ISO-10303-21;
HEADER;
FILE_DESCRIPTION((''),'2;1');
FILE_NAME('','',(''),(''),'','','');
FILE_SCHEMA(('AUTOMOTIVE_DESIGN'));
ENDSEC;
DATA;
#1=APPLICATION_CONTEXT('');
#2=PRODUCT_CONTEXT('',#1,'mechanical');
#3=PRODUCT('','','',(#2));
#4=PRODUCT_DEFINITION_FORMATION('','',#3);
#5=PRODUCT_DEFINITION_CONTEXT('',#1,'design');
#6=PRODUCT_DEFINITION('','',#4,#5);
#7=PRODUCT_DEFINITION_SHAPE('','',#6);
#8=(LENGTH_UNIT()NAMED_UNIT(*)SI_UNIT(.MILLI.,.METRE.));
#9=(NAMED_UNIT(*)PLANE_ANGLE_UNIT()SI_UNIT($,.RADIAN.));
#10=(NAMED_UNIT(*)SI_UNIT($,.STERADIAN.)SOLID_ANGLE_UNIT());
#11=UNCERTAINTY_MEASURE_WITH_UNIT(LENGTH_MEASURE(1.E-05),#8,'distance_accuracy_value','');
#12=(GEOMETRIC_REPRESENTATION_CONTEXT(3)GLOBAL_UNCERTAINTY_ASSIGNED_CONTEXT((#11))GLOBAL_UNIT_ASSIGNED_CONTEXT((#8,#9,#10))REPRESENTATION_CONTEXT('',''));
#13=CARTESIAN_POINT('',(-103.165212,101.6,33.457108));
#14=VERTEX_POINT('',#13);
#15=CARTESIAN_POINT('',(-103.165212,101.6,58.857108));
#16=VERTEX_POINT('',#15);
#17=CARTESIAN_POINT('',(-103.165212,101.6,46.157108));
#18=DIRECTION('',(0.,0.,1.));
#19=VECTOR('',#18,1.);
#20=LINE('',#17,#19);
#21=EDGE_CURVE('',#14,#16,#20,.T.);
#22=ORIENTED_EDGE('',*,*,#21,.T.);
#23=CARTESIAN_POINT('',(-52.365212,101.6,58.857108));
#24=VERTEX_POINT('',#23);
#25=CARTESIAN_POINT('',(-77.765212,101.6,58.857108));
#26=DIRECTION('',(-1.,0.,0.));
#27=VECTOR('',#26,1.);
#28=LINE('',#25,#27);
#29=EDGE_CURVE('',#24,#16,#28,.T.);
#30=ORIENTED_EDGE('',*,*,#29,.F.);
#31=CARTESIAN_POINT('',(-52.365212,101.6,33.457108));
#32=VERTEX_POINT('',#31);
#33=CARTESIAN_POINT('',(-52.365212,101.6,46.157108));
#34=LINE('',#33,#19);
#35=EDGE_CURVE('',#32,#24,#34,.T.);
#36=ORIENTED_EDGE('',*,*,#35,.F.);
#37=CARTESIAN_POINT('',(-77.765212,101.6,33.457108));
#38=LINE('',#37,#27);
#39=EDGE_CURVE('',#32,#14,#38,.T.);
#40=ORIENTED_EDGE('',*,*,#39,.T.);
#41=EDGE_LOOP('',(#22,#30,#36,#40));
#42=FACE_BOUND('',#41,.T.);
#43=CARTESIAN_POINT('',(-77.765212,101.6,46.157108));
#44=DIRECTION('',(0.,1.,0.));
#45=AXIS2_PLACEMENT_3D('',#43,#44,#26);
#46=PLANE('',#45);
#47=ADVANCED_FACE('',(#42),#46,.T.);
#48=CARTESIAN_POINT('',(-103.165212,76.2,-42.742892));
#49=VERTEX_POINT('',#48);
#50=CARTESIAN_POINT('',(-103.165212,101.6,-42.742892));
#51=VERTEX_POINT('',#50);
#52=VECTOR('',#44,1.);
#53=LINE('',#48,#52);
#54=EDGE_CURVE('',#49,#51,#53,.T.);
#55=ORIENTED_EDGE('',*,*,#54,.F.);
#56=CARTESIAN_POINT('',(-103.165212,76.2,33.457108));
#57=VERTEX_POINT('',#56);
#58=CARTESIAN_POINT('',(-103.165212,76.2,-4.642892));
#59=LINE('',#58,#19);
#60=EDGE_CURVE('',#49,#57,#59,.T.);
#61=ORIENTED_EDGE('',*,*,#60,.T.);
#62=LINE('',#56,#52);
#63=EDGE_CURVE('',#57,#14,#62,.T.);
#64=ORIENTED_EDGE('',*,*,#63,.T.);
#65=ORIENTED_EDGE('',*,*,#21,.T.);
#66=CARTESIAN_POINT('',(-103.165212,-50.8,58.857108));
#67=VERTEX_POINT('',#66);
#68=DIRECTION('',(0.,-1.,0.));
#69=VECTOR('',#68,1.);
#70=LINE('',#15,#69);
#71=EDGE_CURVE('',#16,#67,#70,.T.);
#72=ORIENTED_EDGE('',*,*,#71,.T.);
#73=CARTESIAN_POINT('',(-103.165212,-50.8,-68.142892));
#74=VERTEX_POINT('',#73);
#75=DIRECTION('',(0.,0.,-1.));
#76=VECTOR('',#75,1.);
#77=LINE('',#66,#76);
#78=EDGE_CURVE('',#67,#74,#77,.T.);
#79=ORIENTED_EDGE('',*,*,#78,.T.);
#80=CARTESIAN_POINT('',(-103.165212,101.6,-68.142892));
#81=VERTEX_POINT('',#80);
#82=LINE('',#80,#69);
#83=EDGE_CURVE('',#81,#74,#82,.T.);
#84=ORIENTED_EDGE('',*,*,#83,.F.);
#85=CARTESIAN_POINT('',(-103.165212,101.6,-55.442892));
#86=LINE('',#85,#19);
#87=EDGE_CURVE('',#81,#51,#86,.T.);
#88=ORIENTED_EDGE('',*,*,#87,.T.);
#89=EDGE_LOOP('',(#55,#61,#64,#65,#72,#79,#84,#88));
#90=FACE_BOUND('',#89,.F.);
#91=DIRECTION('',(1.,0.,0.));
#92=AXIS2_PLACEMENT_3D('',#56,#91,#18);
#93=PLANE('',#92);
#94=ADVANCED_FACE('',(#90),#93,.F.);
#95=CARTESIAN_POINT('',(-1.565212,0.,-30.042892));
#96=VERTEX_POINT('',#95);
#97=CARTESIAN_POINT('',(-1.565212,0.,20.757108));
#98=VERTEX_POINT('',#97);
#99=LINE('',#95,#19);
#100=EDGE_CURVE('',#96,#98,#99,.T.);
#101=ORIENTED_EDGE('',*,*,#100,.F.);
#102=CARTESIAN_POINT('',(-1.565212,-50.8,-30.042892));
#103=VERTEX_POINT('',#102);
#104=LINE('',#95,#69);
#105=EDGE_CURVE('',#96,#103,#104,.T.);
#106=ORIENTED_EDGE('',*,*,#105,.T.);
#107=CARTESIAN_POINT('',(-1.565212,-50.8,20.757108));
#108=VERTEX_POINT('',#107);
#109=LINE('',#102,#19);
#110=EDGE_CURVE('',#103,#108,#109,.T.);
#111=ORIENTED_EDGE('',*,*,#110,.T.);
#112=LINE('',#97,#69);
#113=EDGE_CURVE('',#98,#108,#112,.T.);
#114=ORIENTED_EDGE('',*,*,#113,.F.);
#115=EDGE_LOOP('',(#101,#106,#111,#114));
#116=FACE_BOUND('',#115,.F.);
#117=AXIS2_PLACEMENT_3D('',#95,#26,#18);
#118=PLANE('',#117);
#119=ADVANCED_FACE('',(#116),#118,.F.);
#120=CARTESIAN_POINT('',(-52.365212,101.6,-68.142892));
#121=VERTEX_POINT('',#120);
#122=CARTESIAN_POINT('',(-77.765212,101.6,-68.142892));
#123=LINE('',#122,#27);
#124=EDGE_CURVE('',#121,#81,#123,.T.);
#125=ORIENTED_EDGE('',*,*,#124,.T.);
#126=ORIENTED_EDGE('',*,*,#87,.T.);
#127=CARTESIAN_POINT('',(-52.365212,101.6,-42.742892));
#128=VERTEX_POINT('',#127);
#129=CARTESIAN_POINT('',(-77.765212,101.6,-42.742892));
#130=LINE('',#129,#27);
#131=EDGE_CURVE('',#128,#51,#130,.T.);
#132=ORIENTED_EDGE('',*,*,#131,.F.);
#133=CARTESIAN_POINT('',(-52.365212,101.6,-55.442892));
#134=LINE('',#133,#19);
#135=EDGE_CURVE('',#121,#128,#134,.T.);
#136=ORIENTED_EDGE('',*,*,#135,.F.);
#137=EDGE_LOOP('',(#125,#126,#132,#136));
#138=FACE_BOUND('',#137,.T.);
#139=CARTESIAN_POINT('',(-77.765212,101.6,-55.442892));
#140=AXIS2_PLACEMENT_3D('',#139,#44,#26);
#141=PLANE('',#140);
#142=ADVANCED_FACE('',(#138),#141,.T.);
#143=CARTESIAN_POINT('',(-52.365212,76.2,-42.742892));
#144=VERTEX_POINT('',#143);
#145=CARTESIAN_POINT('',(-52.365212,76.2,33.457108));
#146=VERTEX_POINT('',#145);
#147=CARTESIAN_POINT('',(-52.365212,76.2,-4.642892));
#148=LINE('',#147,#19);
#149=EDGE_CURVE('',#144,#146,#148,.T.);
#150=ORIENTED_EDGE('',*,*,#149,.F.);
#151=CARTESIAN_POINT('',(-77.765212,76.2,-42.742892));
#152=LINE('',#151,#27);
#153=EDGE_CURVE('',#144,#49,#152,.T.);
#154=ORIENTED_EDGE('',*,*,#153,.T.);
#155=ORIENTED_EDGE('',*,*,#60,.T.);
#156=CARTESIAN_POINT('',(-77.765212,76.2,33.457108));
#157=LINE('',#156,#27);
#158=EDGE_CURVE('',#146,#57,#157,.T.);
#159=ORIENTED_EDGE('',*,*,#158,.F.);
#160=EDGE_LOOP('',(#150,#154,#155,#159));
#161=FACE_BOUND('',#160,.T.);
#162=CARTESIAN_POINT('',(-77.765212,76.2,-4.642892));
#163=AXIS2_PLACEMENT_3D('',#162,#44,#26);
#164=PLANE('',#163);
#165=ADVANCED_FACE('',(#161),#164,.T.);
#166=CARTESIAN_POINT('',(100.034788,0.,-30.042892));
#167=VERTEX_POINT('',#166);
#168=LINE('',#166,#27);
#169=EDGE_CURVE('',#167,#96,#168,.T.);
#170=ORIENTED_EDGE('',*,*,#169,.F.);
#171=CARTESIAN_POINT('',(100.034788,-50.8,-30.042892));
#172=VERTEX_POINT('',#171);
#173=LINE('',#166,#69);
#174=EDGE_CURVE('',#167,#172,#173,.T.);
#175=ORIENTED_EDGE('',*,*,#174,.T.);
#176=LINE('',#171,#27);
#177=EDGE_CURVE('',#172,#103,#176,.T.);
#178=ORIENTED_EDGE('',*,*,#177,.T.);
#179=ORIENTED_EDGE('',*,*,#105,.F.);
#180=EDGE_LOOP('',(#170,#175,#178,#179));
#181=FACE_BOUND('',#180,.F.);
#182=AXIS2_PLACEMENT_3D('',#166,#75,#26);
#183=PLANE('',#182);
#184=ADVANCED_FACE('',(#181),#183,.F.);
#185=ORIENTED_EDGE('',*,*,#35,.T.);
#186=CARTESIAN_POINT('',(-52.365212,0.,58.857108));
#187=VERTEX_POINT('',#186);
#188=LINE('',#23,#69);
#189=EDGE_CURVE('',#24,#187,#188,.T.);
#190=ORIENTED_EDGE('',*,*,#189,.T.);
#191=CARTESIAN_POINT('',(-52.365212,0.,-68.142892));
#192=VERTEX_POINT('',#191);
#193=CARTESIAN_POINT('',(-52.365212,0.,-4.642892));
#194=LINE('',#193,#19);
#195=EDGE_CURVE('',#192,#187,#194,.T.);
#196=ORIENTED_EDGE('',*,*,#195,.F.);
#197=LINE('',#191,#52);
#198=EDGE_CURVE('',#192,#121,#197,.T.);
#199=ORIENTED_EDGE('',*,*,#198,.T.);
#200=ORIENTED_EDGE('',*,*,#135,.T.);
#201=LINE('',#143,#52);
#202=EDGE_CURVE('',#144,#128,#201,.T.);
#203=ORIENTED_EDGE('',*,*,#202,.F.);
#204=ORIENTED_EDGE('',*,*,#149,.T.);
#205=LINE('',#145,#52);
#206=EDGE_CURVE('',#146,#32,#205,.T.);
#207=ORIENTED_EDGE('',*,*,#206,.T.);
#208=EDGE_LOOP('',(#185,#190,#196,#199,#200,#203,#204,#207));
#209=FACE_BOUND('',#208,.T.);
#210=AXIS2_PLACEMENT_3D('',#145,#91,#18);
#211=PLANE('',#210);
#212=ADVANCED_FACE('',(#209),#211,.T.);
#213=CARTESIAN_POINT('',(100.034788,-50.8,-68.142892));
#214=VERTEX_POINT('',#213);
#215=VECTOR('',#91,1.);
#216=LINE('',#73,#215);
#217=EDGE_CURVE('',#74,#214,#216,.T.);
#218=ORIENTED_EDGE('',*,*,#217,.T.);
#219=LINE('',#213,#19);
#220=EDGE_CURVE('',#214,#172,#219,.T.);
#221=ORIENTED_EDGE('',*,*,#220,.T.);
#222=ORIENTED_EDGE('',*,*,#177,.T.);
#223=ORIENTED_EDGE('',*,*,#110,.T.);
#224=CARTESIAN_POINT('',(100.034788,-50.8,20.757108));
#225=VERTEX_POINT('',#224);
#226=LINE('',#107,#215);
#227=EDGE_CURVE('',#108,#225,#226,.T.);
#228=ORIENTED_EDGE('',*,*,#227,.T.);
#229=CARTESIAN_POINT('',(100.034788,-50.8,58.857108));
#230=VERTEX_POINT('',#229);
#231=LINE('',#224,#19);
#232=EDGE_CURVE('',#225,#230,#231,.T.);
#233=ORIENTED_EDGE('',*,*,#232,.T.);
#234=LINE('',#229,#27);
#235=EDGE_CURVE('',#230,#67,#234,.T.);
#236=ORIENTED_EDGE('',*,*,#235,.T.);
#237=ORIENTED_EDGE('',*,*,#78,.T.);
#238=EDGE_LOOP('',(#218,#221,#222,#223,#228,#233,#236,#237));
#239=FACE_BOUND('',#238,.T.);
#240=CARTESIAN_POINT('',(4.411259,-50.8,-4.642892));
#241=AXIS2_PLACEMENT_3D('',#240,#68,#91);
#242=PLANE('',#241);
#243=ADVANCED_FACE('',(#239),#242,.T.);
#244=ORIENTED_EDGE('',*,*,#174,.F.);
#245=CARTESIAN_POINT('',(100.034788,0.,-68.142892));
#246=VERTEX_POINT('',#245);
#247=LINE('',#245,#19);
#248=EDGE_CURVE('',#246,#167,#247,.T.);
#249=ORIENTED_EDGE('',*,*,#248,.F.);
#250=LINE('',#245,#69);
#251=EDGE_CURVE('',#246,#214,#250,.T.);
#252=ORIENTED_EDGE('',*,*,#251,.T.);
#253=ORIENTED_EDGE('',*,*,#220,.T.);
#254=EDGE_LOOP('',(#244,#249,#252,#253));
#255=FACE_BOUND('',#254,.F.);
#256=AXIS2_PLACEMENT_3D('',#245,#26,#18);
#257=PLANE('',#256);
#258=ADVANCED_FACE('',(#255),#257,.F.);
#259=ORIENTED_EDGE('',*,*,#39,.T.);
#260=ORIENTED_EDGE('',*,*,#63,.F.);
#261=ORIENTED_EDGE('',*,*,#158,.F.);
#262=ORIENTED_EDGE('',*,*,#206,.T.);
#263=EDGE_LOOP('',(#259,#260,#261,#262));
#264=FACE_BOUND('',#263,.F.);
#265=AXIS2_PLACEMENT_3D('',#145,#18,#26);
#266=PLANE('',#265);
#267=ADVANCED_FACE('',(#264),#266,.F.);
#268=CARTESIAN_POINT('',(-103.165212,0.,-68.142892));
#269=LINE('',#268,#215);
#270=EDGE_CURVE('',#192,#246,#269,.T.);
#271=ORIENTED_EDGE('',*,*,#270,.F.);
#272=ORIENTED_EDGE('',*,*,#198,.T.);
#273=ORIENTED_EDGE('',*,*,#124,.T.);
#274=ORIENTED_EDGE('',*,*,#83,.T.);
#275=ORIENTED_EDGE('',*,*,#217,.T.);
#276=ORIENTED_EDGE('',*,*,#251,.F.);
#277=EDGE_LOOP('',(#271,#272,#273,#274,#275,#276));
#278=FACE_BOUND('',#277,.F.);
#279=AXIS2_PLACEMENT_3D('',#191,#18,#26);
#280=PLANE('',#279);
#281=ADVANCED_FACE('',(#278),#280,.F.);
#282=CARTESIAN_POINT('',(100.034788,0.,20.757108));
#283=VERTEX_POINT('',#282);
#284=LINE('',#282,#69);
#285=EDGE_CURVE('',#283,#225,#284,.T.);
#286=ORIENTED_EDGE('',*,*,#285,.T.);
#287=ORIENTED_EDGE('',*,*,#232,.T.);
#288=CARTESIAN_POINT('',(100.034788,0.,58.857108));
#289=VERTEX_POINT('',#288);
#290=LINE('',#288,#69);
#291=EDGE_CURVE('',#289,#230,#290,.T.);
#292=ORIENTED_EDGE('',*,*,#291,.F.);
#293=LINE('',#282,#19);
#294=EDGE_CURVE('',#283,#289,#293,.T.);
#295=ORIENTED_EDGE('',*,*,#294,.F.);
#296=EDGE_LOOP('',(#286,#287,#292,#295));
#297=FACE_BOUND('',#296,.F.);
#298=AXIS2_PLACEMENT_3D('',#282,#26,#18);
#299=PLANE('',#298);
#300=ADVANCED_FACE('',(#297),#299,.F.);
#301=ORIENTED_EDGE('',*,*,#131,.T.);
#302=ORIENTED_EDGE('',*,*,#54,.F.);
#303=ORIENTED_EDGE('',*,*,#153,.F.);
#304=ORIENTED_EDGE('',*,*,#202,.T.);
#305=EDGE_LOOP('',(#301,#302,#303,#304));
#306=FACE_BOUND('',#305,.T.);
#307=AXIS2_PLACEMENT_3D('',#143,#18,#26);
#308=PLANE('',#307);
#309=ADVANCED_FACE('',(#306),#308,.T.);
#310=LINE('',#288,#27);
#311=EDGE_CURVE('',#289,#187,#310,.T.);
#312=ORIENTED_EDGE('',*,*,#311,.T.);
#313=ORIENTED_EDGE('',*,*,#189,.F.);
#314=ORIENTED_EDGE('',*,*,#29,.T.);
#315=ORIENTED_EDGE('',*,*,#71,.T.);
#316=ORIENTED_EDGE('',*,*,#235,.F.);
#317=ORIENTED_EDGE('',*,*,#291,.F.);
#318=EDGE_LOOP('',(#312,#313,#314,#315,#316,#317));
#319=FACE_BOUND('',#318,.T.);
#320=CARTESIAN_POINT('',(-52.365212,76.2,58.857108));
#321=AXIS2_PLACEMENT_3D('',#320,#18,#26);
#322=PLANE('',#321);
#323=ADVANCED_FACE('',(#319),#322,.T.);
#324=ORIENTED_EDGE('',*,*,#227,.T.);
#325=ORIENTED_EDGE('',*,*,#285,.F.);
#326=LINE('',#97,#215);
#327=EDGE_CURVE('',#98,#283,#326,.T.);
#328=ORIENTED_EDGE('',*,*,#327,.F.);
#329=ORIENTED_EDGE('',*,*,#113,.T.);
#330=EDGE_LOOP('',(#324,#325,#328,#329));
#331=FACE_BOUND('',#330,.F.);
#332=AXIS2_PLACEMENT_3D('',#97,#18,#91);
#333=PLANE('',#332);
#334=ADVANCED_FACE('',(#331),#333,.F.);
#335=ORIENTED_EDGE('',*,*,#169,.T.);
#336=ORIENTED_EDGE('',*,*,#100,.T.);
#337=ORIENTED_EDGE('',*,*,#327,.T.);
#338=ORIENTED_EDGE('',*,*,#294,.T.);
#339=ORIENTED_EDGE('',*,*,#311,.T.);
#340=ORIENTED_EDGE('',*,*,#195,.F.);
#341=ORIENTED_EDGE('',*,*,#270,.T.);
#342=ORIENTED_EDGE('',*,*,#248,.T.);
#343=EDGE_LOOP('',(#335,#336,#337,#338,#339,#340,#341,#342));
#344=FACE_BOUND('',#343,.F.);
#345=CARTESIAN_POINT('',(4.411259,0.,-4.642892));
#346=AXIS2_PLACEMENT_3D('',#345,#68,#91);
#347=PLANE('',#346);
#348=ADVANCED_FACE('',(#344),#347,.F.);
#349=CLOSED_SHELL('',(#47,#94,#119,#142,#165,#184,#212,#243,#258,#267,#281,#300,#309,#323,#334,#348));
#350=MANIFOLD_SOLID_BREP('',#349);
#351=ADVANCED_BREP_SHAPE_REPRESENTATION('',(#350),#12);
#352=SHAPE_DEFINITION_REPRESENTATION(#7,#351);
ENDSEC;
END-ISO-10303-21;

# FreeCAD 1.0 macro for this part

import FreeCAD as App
import Part
import Sketcher
Q = App.Units.Quantity

doc = App.newDocument("Part")
body = doc.addObject("PartDesign::Body", "Body")

# Sketch on XZ plane
sketch1 = body.newObject("Sketcher::SketchObject", "Sketch")
sketch1.AttachmentSupport = (doc.getObject("XZ_Plane"), [""])
sketch1.MapMode = "FlatFace"
sketch1.addGeometry(Part.LineSegment(App.Vector(100, 59, 0), App.Vector(-103, 59, 0)), False)
sketch1.addGeometry(Part.LineSegment(App.Vector(-103, 59, 0), App.Vector(-103, -68, 0)), False)
sketch1.addGeometry(Part.LineSegment(App.Vector(-103, -68, 0), App.Vector(100, -68, 0)), False)
sketch1.addGeometry(Part.LineSegment(App.Vector(100, -68, 0), App.Vector(100, -30, 0)), False)
sketch1.addGeometry(Part.LineSegment(App.Vector(100, -30, 0), App.Vector(-2, -30, 0)), False)
sketch1.addGeometry(Part.LineSegment(App.Vector(-2, -30, 0), App.Vector(-2, 21, 0)), False)
sketch1.addGeometry(Part.LineSegment(App.Vector(-2, 21, 0), App.Vector(100, 21, 0)), False)
sketch1.addGeometry(Part.LineSegment(App.Vector(100, 21, 0), App.Vector(100, 59, 0)), False)
sketch1.addConstraint(Sketcher.Constraint("Coincident", 0, 2, 1, 1))
sketch1.addConstraint(Sketcher.Constraint("Coincident", 1, 2, 2, 1))
sketch1.addConstraint(Sketcher.Constraint("Coincident", 2, 2, 3, 1))
sketch1.addConstraint(Sketcher.Constraint("Coincident", 3, 2, 4, 1))
sketch1.addConstraint(Sketcher.Constraint("Coincident", 4, 2, 5, 1))
sketch1.addConstraint(Sketcher.Constraint("Coincident", 5, 2, 6, 1))
sketch1.addConstraint(Sketcher.Constraint("Coincident", 6, 2, 7, 1))
sketch1.addConstraint(Sketcher.Constraint("Coincident", 7, 2, 0, 1))
sketch1.addConstraint(Sketcher.Constraint("Horizontal", 0))
sketch1.addConstraint(Sketcher.Constraint("Vertical", 1))
sketch1.addConstraint(Sketcher.Constraint("Horizontal", 2))
sketch1.addConstraint(Sketcher.Constraint("Vertical", 3))
sketch1.addConstraint(Sketcher.Constraint("Horizontal", 4))
sketch1.addConstraint(Sketcher.Constraint("Vertical", 5))
sketch1.addConstraint(Sketcher.Constraint("Horizontal", 6))
sketch1.addConstraint(Sketcher.Constraint("Vertical", 7))
sketch1.addConstraint(Sketcher.Constraint("Vertical", 3, 2, 6, 2))
sketch1.addConstraint(Sketcher.Constraint("Equal", 3, 7))
sketch1.addConstraint(Sketcher.Constraint("DistanceX", 0, 2, 0, 1, Q("8 in")))
sketch1.addConstraint(Sketcher.Constraint("DistanceX", 4, 2, 4, 1, Q("4 in")))
sketch1.addConstraint(Sketcher.Constraint("DistanceY", 1, 2, 1, 1, Q("5 in")))
sketch1.addConstraint(Sketcher.Constraint("DistanceY", 5, 1, 5, 2, Q("2 in")))
sketch1.addConstraint(Sketcher.Constraint("DistanceX", 0, 2, -1, 1, Q("103.165212 mm")))
sketch1.addConstraint(Sketcher.Constraint("DistanceY", 3, 2, -1, 1, Q("30.042892 mm")))
pad1 = body.newObject("PartDesign::Pad", "Pad")
pad1.Profile = sketch1
pad1.Length = Q("2 in")

# Sketch on XZ plane
sketch2 = body.newObject("Sketcher::SketchObject", "Sketch001")
sketch2.AttachmentSupport = (doc.getObject("XZ_Plane"), [""])
sketch2.MapMode = "FlatFace"
sketch2.addGeometry(Part.LineSegment(App.Vector(-52, 59, 0), App.Vector(-52, -68, 0)), False)
sketch2.addGeometry(Part.LineSegment(App.Vector(-52, -68, 0), App.Vector(-103, -68, 0)), False)
sketch2.addGeometry(Part.LineSegment(App.Vector(-103, -68, 0), App.Vector(-103, 59, 0)), False)
sketch2.addGeometry(Part.LineSegment(App.Vector(-103, 59, 0), App.Vector(-52, 59, 0)), False)
sketch2.addConstraint(Sketcher.Constraint("Coincident", 0, 2, 1, 1))
sketch2.addConstraint(Sketcher.Constraint("Coincident", 1, 2, 2, 1))
sketch2.addConstraint(Sketcher.Constraint("Coincident", 2, 2, 3, 1))
sketch2.addConstraint(Sketcher.Constraint("Coincident", 3, 2, 0, 1))
sketch2.addConstraint(Sketcher.Constraint("Vertical", 0))
sketch2.addConstraint(Sketcher.Constraint("Horizontal", 1))
sketch2.addConstraint(Sketcher.Constraint("Vertical", 2))
sketch2.addConstraint(Sketcher.Constraint("Horizontal", 3))
sketch2.addConstraint(Sketcher.Constraint("DistanceX", 1, 2, 1, 1, Q("2 in")))
sketch2.addConstraint(Sketcher.Constraint("DistanceY", 0, 2, 0, 1, Q("5 in")))
sketch2.addConstraint(Sketcher.Constraint("DistanceX", 1, 2, -1, 1, Q("103.165212 mm")))
sketch2.addConstraint(Sketcher.Constraint("DistanceY", 0, 2, -1, 1, Q("68.142892 mm")))
pad2 = body.newObject("PartDesign::Pad", "Pad001")
pad2.Profile = sketch2
pad2.Length = Q("3 in")
pad2.Reversed = True

# Sketch on XZ plane
sketch3 = body.newObject("Sketcher::SketchObject", "Sketch002")
sketch3.AttachmentSupport = (doc.getObject("XZ_Plane"), [""])
sketch3.MapMode = "FlatFace"
sketch3.AttachmentOffset = App.Placement(App.Vector(0, 0, -3 * 25.4), App.Rotation())
sketch3.addGeometry(Part.LineSegment(App.Vector(-52, 59, 0), App.Vector(-52, 33, 0)), False)
sketch3.addGeometry(Part.LineSegment(App.Vector(-52, 33, 0), App.Vector(-103, 33, 0)), False)
sketch3.addGeometry(Part.LineSegment(App.Vector(-103, 33, 0), App.Vector(-103, 59, 0)), False)
sketch3.addGeometry(Part.LineSegment(App.Vector(-103, 59, 0), App.Vector(-52, 59, 0)), False)
sketch3.addGeometry(Part.LineSegment(App.Vector(-52, -43, 0), App.Vector(-52, -68, 0)), False)
sketch3.addGeometry(Part.LineSegment(App.Vector(-52, -68, 0), App.Vector(-103, -68, 0)), False)
sketch3.addGeometry(Part.LineSegment(App.Vector(-103, -68, 0), App.Vector(-103, -43, 0)), False)
sketch3.addGeometry(Part.LineSegment(App.Vector(-103, -43, 0), App.Vector(-52, -43, 0)), False)
sketch3.addConstraint(Sketcher.Constraint("Coincident", 0, 2, 1, 1))
sketch3.addConstraint(Sketcher.Constraint("Coincident", 1, 2, 2, 1))
sketch3.addConstraint(Sketcher.Constraint("Coincident", 2, 2, 3, 1))
sketch3.addConstraint(Sketcher.Constraint("Coincident", 3, 2, 0, 1))
sketch3.addConstraint(Sketcher.Constraint("Coincident", 4, 2, 5, 1))
sketch3.addConstraint(Sketcher.Constraint("Coincident", 5, 2, 6, 1))
sketch3.addConstraint(Sketcher.Constraint("Coincident", 6, 2, 7, 1))
sketch3.addConstraint(Sketcher.Constraint("Coincident", 7, 2, 4, 1))
sketch3.addConstraint(Sketcher.Constraint("Vertical", 0))
sketch3.addConstraint(Sketcher.Constraint("Horizontal", 1))
sketch3.addConstraint(Sketcher.Constraint("Vertical", 2))
sketch3.addConstraint(Sketcher.Constraint("Horizontal", 3))
sketch3.addConstraint(Sketcher.Constraint("Vertical", 4))
sketch3.addConstraint(Sketcher.Constraint("Horizontal", 5))
sketch3.addConstraint(Sketcher.Constraint("Vertical", 6))
sketch3.addConstraint(Sketcher.Constraint("Horizontal", 7))
sketch3.addConstraint(Sketcher.Constraint("Vertical", 3, 2, 4, 2))
sketch3.addConstraint(Sketcher.Constraint("Vertical", 2, 2, 5, 2))
sketch3.addConstraint(Sketcher.Constraint("Equal", 2, 4))
sketch3.addConstraint(Sketcher.Constraint("DistanceX", 1, 2, 1, 1, Q("2 in")))
sketch3.addConstraint(Sketcher.Constraint("DistanceY", 0, 2, 0, 1, Q("1 in")))
sketch3.addConstraint(Sketcher.Constraint("DistanceY", 4, 2, 0, 2, Q("4 in")))
sketch3.addConstraint(Sketcher.Constraint("DistanceX", 1, 2, -1, 1, Q("103.165212 mm")))
sketch3.addConstraint(Sketcher.Constraint("DistanceY", 6, 2, -1, 1, Q("42.742892 mm")))
pad3 = body.newObject("PartDesign::Pad", "Pad002")
pad3.Profile = sketch3
pad3.Length = Q("1 in")
pad3.Reversed = True

doc.recompute()
